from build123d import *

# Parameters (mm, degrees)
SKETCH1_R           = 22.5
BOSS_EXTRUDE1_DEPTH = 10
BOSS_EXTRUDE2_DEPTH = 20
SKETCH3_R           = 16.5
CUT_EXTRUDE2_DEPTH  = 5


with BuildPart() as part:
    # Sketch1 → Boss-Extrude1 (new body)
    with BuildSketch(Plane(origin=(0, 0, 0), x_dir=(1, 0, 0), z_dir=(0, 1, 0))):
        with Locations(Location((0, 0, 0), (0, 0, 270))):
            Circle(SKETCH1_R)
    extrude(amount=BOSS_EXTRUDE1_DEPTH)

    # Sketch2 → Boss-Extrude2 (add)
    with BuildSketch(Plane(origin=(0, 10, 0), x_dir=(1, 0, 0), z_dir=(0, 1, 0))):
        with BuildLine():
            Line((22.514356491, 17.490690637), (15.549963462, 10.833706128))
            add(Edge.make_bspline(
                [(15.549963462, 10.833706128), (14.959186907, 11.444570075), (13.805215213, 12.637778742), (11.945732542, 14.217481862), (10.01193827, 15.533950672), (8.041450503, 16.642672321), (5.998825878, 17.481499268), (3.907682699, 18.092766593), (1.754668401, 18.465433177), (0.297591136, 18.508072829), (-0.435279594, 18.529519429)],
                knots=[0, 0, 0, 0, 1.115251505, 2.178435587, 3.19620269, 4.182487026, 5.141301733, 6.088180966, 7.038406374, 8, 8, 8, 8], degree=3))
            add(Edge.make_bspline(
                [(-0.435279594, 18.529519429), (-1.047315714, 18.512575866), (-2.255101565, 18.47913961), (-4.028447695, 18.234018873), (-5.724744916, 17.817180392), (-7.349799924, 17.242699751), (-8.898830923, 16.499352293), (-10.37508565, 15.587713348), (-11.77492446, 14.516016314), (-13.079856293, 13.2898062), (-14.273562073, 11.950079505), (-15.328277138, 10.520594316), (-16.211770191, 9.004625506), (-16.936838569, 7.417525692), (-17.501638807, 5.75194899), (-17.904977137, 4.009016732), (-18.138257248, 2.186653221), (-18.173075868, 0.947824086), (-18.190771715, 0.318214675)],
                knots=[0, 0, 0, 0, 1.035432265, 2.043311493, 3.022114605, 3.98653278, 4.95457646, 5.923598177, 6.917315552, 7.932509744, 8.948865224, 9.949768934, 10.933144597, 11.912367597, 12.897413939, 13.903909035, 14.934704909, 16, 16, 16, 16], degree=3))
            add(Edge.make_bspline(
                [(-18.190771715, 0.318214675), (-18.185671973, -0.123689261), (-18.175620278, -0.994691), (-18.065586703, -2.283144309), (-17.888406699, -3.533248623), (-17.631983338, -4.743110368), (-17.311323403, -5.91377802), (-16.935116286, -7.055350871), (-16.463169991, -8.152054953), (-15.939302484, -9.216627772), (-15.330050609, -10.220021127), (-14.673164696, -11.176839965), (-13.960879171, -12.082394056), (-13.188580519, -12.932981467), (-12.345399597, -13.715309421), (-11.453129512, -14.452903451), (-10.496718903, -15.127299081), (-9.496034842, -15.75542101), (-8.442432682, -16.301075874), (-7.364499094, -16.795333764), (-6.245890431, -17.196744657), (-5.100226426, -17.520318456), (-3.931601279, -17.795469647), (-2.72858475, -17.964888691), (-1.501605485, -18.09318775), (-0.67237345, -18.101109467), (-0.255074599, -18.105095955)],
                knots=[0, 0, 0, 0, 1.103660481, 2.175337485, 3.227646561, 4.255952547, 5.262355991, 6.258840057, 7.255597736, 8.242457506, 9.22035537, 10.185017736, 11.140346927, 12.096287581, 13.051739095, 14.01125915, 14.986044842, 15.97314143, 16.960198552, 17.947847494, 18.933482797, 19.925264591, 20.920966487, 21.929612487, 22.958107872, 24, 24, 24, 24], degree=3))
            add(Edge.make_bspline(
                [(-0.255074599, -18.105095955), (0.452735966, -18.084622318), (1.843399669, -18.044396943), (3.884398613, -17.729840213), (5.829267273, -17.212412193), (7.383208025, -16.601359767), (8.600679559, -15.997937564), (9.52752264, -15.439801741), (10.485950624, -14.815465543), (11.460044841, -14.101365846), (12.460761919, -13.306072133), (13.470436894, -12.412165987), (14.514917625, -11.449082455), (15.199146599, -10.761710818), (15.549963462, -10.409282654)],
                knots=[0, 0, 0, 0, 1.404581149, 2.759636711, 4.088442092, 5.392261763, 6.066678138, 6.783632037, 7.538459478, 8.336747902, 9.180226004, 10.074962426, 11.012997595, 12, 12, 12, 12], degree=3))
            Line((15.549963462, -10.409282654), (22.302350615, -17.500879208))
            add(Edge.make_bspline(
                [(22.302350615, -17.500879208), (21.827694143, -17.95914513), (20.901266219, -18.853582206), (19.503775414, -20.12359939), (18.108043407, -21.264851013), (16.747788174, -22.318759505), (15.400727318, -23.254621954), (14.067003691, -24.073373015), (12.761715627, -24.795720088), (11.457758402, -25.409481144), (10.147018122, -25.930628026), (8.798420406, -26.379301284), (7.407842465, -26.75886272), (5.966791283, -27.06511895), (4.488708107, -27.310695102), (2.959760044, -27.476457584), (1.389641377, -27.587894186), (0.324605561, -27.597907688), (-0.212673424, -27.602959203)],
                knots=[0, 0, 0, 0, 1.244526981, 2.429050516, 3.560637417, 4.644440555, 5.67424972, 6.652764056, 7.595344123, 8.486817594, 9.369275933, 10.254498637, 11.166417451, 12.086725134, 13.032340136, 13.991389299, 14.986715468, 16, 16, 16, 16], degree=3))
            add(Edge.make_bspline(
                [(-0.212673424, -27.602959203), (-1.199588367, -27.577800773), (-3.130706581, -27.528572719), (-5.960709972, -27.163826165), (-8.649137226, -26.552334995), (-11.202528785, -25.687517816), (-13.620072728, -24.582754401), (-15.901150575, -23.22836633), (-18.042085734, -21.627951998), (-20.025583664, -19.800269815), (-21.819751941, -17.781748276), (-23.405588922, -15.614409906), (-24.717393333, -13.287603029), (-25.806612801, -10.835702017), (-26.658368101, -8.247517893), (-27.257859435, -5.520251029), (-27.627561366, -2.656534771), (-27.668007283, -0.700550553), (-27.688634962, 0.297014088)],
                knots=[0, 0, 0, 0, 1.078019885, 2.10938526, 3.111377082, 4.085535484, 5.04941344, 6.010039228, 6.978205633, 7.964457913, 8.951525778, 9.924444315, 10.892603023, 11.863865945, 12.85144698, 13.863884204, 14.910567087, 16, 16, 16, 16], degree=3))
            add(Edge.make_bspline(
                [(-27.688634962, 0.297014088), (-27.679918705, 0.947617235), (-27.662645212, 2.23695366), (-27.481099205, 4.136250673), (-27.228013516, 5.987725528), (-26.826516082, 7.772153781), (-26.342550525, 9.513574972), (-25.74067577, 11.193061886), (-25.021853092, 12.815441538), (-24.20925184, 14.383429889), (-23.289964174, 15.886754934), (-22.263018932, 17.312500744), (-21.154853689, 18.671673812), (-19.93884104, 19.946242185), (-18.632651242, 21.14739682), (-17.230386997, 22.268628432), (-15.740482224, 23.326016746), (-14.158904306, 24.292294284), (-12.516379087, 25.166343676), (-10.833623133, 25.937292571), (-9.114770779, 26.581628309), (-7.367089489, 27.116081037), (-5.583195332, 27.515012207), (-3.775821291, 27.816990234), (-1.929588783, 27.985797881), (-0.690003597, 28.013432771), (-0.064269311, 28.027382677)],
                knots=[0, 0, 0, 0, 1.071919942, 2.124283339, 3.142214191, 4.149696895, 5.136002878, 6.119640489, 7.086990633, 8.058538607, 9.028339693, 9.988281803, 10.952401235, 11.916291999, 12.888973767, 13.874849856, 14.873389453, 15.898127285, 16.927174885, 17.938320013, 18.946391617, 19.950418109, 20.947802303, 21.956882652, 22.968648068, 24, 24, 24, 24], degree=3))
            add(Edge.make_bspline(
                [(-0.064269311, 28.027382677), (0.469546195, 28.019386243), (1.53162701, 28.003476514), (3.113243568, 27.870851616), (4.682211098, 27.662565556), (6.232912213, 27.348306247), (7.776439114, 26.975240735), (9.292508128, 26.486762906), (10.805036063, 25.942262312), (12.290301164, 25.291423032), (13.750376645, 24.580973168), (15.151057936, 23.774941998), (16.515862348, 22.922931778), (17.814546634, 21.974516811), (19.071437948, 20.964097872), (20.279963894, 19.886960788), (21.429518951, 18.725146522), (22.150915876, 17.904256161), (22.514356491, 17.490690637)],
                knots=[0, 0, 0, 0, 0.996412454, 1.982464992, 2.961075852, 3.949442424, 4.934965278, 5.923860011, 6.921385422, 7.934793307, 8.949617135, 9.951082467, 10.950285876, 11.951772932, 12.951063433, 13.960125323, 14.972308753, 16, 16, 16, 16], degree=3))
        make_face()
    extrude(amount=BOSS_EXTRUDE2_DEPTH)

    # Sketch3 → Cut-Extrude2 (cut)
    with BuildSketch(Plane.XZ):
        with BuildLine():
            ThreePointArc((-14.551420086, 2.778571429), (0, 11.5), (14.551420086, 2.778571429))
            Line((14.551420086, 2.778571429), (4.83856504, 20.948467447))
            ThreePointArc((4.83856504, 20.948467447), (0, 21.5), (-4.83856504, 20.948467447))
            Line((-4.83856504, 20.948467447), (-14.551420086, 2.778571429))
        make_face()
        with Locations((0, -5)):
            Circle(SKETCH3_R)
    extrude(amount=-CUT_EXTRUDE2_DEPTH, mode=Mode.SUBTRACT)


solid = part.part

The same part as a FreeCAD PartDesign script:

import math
import FreeCAD as App
import Part
import Sketcher

V = App.Vector
Q = App.Units.Quantity

doc = App.newDocument("Part")
body = doc.addObject("PartDesign::Body", "Body")

# Sketch on XZ plane
sketch1 = body.newObject("Sketcher::SketchObject", "Sketch")
sketch1.AttachmentSupport = (doc.getObject("XZ_Plane"), [""])
sketch1.MapMode = "FlatFace"
sketch1.addGeometry(Part.Circle(V(0, 0, 0), V(0, 0, 1), 22), False)
sketch1.addConstraint([
    Sketcher.Constraint("Coincident", 0, 3, -1, 1),
    Sketcher.Constraint("Diameter", 0, Q("45 mm")),
])
pad1 = body.newObject("PartDesign::Pad", "Pad")
pad1.Profile = sketch1
pad1.Length = 10
pad1.Reversed = True

# Sketch on XZ plane
sketch2 = body.newObject("Sketcher::SketchObject", "Sketch001")
sketch2.AttachmentSupport = (doc.getObject("XZ_Plane"), [""])
sketch2.MapMode = "FlatFace"
sketch2.AttachmentOffset = App.Placement(V(0, 0, -10), App.Rotation())
sketch2.addGeometry([
    Part.LineSegment(V(15.549963, -10.833706, 0), V(22.514356, -17.490691, 0)),  # 0
    Part.BSplineCurve([V(-0.064269, -28.027383, 0), V(0.469546, -28.019386, 0), V(1.531627, -28.003477, 0), V(3.113244, -27.870852, 0), V(4.682211, -27.662566, 0), V(6.232912, -27.348306, 0), V(7.776439, -26.975241, 0), V(9.292508, -26.486763, 0), V(10.805036, -25.942262, 0), V(12.290301, -25.291423, 0), V(13.750377, -24.580973, 0), V(15.151058, -23.774942, 0), V(16.515862, -22.922932, 0), V(17.814547, -21.974517, 0), V(19.071438, -20.964098, 0), V(20.279964, -19.886961, 0), V(21.429519, -18.725147, 0), V(22.150916, -17.904256, 0), V(22.514356, -17.490691, 0)], [4, 1, 1, 1, 1, 1, 1, 1, 1, 1, 1, 1, 1, 1, 1, 1, 4], [0, 0.996412454, 1.982464992, 2.961075852, 3.949442424, 4.934965278, 5.923860011, 6.921385422, 7.934793307, 8.949617135, 9.951082467, 10.950285876, 11.951772932, 12.951063433, 13.960125323, 14.972308753, 16], False, 3, [1, 1, 1, 1, 1, 1, 1, 1, 1, 1, 1, 1, 1, 1, 1, 1, 1, 1, 1], False),  # 1
    Part.BSplineCurve([V(-27.688635, -0.297014, 0), V(-27.679919, -0.947617, 0), V(-27.662645, -2.236954, 0), V(-27.481099, -4.136251, 0), V(-27.228014, -5.987726, 0), V(-26.826516, -7.772154, 0), V(-26.342551, -9.513575, 0), V(-25.740676, -11.193062, 0), V(-25.021853, -12.815442, 0), V(-24.209252, -14.38343, 0), V(-23.289964, -15.886755, 0), V(-22.263019, -17.312501, 0), V(-21.154854, -18.671674, 0), V(-19.938841, -19.946242, 0), V(-18.632651, -21.147397, 0), V(-17.230387, -22.268628, 0), V(-15.740482, -23.326017, 0), V(-14.158904, -24.292294, 0), V(-12.516379, -25.166344, 0), V(-10.833623, -25.937293, 0), V(-9.114771, -26.581628, 0), V(-7.367089, -27.116081, 0), V(-5.583195, -27.515012, 0), V(-3.775821, -27.81699, 0), V(-1.929589, -27.985798, 0), V(-0.690004, -28.013433, 0), V(-0.064269, -28.027383, 0)], [4, 1, 1, 1, 1, 1, 1, 1, 1, 1, 1, 1, 1, 1, 1, 1, 1, 1, 1, 1, 1, 1, 1, 1, 4], [0, 1.071919942, 2.124283339, 3.142214191, 4.149696895, 5.136002878, 6.119640489, 7.086990633, 8.058538607, 9.028339693, 9.988281803, 10.952401235, 11.916291999, 12.888973767, 13.874849856, 14.873389453, 15.898127285, 16.927174885, 17.938320013, 18.946391617, 19.950418109, 20.947802303, 21.956882652, 22.968648068, 24], False, 3, [1, 1, 1, 1, 1, 1, 1, 1, 1, 1, 1, 1, 1, 1, 1, 1, 1, 1, 1, 1, 1, 1, 1, 1, 1, 1, 1], False),  # 2
    Part.BSplineCurve([V(-0.212673, 27.602959, 0), V(-1.199588, 27.577801, 0), V(-3.130707, 27.528573, 0), V(-5.96071, 27.163826, 0), V(-8.649137, 26.552335, 0), V(-11.202529, 25.687518, 0), V(-13.620073, 24.582754, 0), V(-15.901151, 23.228366, 0), V(-18.042086, 21.627952, 0), V(-20.025584, 19.80027, 0), V(-21.819752, 17.781748, 0), V(-23.405589, 15.61441, 0), V(-24.717393, 13.287603, 0), V(-25.806613, 10.835702, 0), V(-26.658368, 8.247518, 0), V(-27.257859, 5.520251, 0), V(-27.627561, 2.656535, 0), V(-27.668007, 0.700551, 0), V(-27.688635, -0.297014, 0)], [4, 1, 1, 1, 1, 1, 1, 1, 1, 1, 1, 1, 1, 1, 1, 1, 4], [0, 1.078019885, 2.10938526, 3.111377082, 4.085535484, 5.04941344, 6.010039228, 6.978205633, 7.964457913, 8.951525778, 9.924444315, 10.892603023, 11.863865945, 12.85144698, 13.863884204, 14.910567087, 16], False, 3, [1, 1, 1, 1, 1, 1, 1, 1, 1, 1, 1, 1, 1, 1, 1, 1, 1, 1, 1], False),  # 3
    Part.BSplineCurve([V(22.302351, 17.500879, 0), V(21.827694, 17.959145, 0), V(20.901266, 18.853582, 0), V(19.503775, 20.123599, 0), V(18.108043, 21.264851, 0), V(16.747788, 22.31876, 0), V(15.400727, 23.254622, 0), V(14.067004, 24.073373, 0), V(12.761716, 24.79572, 0), V(11.457758, 25.409481, 0), V(10.147018, 25.930628, 0), V(8.79842, 26.379301, 0), V(7.407842, 26.758863, 0), V(5.966791, 27.065119, 0), V(4.488708, 27.310695, 0), V(2.95976, 27.476458, 0), V(1.389641, 27.587894, 0), V(0.324606, 27.597908, 0), V(-0.212673, 27.602959, 0)], [4, 1, 1, 1, 1, 1, 1, 1, 1, 1, 1, 1, 1, 1, 1, 1, 4], [0, 1.244526981, 2.429050516, 3.560637417, 4.644440555, 5.67424972, 6.652764056, 7.595344123, 8.486817594, 9.369275933, 10.254498637, 11.166417451, 12.086725134, 13.032340136, 13.991389299, 14.986715468, 16], False, 3, [1, 1, 1, 1, 1, 1, 1, 1, 1, 1, 1, 1, 1, 1, 1, 1, 1, 1, 1], False),  # 4
    Part.LineSegment(V(22.302351, 17.500879, 0), V(15.549963, 10.409283, 0)),  # 5
    Part.BSplineCurve([V(-0.255075, 18.105096, 0), V(0.452736, 18.084622, 0), V(1.8434, 18.044397, 0), V(3.884399, 17.72984, 0), V(5.829267, 17.212412, 0), V(7.383208, 16.60136, 0), V(8.60068, 15.997938, 0), V(9.527523, 15.439802, 0), V(10.485951, 14.815466, 0), V(11.460045, 14.101366, 0), V(12.460762, 13.306072, 0), V(13.470437, 12.412166, 0), V(14.514918, 11.449082, 0), V(15.199147, 10.761711, 0), V(15.549963, 10.409283, 0)], [4, 1, 1, 1, 1, 1, 1, 1, 1, 1, 1, 1, 4], [0, 1.404581149, 2.759636711, 4.088442092, 5.392261763, 6.066678138, 6.783632037, 7.538459478, 8.336747902, 9.180226004, 10.074962426, 11.012997595, 12], False, 3, [1, 1, 1, 1, 1, 1, 1, 1, 1, 1, 1, 1, 1, 1, 1], False),  # 6
    Part.BSplineCurve([V(-18.190772, -0.318215, 0), V(-18.185672, 0.123689, 0), V(-18.17562, 0.994691, 0), V(-18.065587, 2.283144, 0), V(-17.888407, 3.533249, 0), V(-17.631983, 4.74311, 0), V(-17.311323, 5.913778, 0), V(-16.935116, 7.055351, 0), V(-16.46317, 8.152055, 0), V(-15.939302, 9.216628, 0), V(-15.330051, 10.220021, 0), V(-14.673165, 11.17684, 0), V(-13.960879, 12.082394, 0), V(-13.188581, 12.932981, 0), V(-12.3454, 13.715309, 0), V(-11.45313, 14.452903, 0), V(-10.496719, 15.127299, 0), V(-9.496035, 15.755421, 0), V(-8.442433, 16.301076, 0), V(-7.364499, 16.795334, 0), V(-6.24589, 17.196745, 0), V(-5.100226, 17.520318, 0), V(-3.931601, 17.79547, 0), V(-2.728585, 17.964889, 0), V(-1.501605, 18.093188, 0), V(-0.672373, 18.101109, 0), V(-0.255075, 18.105096, 0)], [4, 1, 1, 1, 1, 1, 1, 1, 1, 1, 1, 1, 1, 1, 1, 1, 1, 1, 1, 1, 1, 1, 1, 1, 4], [0, 1.103660481, 2.175337485, 3.227646561, 4.255952547, 5.262355991, 6.258840057, 7.255597736, 8.242457506, 9.22035537, 10.185017736, 11.140346927, 12.096287581, 13.051739095, 14.01125915, 14.986044842, 15.97314143, 16.960198552, 17.947847494, 18.933482797, 19.925264591, 20.920966487, 21.929612487, 22.958107872, 24], False, 3, [1, 1, 1, 1, 1, 1, 1, 1, 1, 1, 1, 1, 1, 1, 1, 1, 1, 1, 1, 1, 1, 1, 1, 1, 1, 1, 1], False),  # 7
    Part.BSplineCurve([V(-0.43528, -18.529519, 0), V(-1.047316, -18.512576, 0), V(-2.255102, -18.47914, 0), V(-4.028448, -18.234019, 0), V(-5.724745, -17.81718, 0), V(-7.3498, -17.2427, 0), V(-8.898831, -16.499352, 0), V(-10.375086, -15.587713, 0), V(-11.774924, -14.516016, 0), V(-13.079856, -13.289806, 0), V(-14.273562, -11.95008, 0), V(-15.328277, -10.520594, 0), V(-16.21177, -9.004626, 0), V(-16.936839, -7.417526, 0), V(-17.501639, -5.751949, 0), V(-17.904977, -4.009017, 0), V(-18.138257, -2.186653, 0), V(-18.173076, -0.947824, 0), V(-18.190772, -0.318215, 0)], [4, 1, 1, 1, 1, 1, 1, 1, 1, 1, 1, 1, 1, 1, 1, 1, 4], [0, 1.035432265, 2.043311493, 3.022114605, 3.98653278, 4.95457646, 5.923598177, 6.917315552, 7.932509744, 8.948865224, 9.949768934, 10.933144597, 11.912367597, 12.897413939, 13.903909035, 14.934704909, 16], False, 3, [1, 1, 1, 1, 1, 1, 1, 1, 1, 1, 1, 1, 1, 1, 1, 1, 1, 1, 1], False),  # 8
    Part.BSplineCurve([V(15.549963, -10.833706, 0), V(14.959187, -11.44457, 0), V(13.805215, -12.637779, 0), V(11.945733, -14.217482, 0), V(10.011938, -15.533951, 0), V(8.041451, -16.642672, 0), V(5.998826, -17.481499, 0), V(3.907683, -18.092767, 0), V(1.754668, -18.465433, 0), V(0.297591, -18.508073, 0), V(-0.43528, -18.529519, 0)], [4, 1, 1, 1, 1, 1, 1, 1, 4], [0, 1.115251505, 2.178435587, 3.19620269, 4.182487026, 5.141301733, 6.088180966, 7.038406374, 8], False, 3, [1, 1, 1, 1, 1, 1, 1, 1, 1, 1, 1], False),  # 9
], False)
sketch2.addConstraint([
    Sketcher.Constraint("Block", 1),
    Sketcher.Constraint("Block", 2),
    Sketcher.Constraint("Block", 3),
    Sketcher.Constraint("Block", 4),
    Sketcher.Constraint("Block", 6),
    Sketcher.Constraint("Block", 7),
    Sketcher.Constraint("Block", 8),
    Sketcher.Constraint("Block", 9),
    Sketcher.Constraint("Coincident", 0, 2, 1, 2),
    Sketcher.Constraint("Coincident", 4, 1, 5, 1),
    Sketcher.Constraint("Coincident", 5, 2, 6, 2),
    Sketcher.Constraint("Coincident", 9, 1, 0, 1),
])
pad2 = body.newObject("PartDesign::Pad", "Pad001")
pad2.Profile = sketch2
pad2.Length = 20
pad2.Reversed = True

# Sketch on XZ plane
sketch3 = body.newObject("Sketcher::SketchObject", "Sketch002")
sketch3.AttachmentSupport = (doc.getObject("XZ_Plane"), [""])
sketch3.MapMode = "FlatFace"
sketch3.addGeometry([
    Part.LineSegment(V(15, 3, 0), V(5, 21, 0)),
    Part.ArcOfCircle(Part.Circle(V(0, 0, 0), V(0, 0, 1), 22), math.radians(77), math.radians(103)),
    Part.LineSegment(V(-5, 21, 0), V(-15, 3, 0)),
    Part.ArcOfCircle(Part.Circle(V(0, -5, 0), V(0, 0, 1), 16), math.radians(152), math.radians(388)),
], False)
sketch3.addConstraint([
    Sketcher.Constraint("Coincident", 0, 2, 1, 1),
    Sketcher.Constraint("Coincident", 1, 2, 2, 1),
    Sketcher.Constraint("Tangent", 2, 2, 3, 1),
    Sketcher.Constraint("Tangent", 3, 2, 0, 1),
    Sketcher.Constraint("Coincident", 1, 3, -1, 1),
    Sketcher.Constraint("Symmetric", 2, 2, 3, 2, -2),
    Sketcher.Constraint("Radius", 1, Q("21.5 mm")),
    Sketcher.Constraint("Radius", 3, Q("16.5 mm")),
    Sketcher.Constraint("DistanceY", 3, 3, -1, 1, Q("5 mm")),
    Sketcher.Constraint("DistanceX", 2, 2, -1, 1, Q("14.55142 mm")),
])
pocket1 = body.newObject("PartDesign::Pocket", "Pocket")
pocket1.Profile = sketch3
pocket1.Length = 5

doc.recompute()
